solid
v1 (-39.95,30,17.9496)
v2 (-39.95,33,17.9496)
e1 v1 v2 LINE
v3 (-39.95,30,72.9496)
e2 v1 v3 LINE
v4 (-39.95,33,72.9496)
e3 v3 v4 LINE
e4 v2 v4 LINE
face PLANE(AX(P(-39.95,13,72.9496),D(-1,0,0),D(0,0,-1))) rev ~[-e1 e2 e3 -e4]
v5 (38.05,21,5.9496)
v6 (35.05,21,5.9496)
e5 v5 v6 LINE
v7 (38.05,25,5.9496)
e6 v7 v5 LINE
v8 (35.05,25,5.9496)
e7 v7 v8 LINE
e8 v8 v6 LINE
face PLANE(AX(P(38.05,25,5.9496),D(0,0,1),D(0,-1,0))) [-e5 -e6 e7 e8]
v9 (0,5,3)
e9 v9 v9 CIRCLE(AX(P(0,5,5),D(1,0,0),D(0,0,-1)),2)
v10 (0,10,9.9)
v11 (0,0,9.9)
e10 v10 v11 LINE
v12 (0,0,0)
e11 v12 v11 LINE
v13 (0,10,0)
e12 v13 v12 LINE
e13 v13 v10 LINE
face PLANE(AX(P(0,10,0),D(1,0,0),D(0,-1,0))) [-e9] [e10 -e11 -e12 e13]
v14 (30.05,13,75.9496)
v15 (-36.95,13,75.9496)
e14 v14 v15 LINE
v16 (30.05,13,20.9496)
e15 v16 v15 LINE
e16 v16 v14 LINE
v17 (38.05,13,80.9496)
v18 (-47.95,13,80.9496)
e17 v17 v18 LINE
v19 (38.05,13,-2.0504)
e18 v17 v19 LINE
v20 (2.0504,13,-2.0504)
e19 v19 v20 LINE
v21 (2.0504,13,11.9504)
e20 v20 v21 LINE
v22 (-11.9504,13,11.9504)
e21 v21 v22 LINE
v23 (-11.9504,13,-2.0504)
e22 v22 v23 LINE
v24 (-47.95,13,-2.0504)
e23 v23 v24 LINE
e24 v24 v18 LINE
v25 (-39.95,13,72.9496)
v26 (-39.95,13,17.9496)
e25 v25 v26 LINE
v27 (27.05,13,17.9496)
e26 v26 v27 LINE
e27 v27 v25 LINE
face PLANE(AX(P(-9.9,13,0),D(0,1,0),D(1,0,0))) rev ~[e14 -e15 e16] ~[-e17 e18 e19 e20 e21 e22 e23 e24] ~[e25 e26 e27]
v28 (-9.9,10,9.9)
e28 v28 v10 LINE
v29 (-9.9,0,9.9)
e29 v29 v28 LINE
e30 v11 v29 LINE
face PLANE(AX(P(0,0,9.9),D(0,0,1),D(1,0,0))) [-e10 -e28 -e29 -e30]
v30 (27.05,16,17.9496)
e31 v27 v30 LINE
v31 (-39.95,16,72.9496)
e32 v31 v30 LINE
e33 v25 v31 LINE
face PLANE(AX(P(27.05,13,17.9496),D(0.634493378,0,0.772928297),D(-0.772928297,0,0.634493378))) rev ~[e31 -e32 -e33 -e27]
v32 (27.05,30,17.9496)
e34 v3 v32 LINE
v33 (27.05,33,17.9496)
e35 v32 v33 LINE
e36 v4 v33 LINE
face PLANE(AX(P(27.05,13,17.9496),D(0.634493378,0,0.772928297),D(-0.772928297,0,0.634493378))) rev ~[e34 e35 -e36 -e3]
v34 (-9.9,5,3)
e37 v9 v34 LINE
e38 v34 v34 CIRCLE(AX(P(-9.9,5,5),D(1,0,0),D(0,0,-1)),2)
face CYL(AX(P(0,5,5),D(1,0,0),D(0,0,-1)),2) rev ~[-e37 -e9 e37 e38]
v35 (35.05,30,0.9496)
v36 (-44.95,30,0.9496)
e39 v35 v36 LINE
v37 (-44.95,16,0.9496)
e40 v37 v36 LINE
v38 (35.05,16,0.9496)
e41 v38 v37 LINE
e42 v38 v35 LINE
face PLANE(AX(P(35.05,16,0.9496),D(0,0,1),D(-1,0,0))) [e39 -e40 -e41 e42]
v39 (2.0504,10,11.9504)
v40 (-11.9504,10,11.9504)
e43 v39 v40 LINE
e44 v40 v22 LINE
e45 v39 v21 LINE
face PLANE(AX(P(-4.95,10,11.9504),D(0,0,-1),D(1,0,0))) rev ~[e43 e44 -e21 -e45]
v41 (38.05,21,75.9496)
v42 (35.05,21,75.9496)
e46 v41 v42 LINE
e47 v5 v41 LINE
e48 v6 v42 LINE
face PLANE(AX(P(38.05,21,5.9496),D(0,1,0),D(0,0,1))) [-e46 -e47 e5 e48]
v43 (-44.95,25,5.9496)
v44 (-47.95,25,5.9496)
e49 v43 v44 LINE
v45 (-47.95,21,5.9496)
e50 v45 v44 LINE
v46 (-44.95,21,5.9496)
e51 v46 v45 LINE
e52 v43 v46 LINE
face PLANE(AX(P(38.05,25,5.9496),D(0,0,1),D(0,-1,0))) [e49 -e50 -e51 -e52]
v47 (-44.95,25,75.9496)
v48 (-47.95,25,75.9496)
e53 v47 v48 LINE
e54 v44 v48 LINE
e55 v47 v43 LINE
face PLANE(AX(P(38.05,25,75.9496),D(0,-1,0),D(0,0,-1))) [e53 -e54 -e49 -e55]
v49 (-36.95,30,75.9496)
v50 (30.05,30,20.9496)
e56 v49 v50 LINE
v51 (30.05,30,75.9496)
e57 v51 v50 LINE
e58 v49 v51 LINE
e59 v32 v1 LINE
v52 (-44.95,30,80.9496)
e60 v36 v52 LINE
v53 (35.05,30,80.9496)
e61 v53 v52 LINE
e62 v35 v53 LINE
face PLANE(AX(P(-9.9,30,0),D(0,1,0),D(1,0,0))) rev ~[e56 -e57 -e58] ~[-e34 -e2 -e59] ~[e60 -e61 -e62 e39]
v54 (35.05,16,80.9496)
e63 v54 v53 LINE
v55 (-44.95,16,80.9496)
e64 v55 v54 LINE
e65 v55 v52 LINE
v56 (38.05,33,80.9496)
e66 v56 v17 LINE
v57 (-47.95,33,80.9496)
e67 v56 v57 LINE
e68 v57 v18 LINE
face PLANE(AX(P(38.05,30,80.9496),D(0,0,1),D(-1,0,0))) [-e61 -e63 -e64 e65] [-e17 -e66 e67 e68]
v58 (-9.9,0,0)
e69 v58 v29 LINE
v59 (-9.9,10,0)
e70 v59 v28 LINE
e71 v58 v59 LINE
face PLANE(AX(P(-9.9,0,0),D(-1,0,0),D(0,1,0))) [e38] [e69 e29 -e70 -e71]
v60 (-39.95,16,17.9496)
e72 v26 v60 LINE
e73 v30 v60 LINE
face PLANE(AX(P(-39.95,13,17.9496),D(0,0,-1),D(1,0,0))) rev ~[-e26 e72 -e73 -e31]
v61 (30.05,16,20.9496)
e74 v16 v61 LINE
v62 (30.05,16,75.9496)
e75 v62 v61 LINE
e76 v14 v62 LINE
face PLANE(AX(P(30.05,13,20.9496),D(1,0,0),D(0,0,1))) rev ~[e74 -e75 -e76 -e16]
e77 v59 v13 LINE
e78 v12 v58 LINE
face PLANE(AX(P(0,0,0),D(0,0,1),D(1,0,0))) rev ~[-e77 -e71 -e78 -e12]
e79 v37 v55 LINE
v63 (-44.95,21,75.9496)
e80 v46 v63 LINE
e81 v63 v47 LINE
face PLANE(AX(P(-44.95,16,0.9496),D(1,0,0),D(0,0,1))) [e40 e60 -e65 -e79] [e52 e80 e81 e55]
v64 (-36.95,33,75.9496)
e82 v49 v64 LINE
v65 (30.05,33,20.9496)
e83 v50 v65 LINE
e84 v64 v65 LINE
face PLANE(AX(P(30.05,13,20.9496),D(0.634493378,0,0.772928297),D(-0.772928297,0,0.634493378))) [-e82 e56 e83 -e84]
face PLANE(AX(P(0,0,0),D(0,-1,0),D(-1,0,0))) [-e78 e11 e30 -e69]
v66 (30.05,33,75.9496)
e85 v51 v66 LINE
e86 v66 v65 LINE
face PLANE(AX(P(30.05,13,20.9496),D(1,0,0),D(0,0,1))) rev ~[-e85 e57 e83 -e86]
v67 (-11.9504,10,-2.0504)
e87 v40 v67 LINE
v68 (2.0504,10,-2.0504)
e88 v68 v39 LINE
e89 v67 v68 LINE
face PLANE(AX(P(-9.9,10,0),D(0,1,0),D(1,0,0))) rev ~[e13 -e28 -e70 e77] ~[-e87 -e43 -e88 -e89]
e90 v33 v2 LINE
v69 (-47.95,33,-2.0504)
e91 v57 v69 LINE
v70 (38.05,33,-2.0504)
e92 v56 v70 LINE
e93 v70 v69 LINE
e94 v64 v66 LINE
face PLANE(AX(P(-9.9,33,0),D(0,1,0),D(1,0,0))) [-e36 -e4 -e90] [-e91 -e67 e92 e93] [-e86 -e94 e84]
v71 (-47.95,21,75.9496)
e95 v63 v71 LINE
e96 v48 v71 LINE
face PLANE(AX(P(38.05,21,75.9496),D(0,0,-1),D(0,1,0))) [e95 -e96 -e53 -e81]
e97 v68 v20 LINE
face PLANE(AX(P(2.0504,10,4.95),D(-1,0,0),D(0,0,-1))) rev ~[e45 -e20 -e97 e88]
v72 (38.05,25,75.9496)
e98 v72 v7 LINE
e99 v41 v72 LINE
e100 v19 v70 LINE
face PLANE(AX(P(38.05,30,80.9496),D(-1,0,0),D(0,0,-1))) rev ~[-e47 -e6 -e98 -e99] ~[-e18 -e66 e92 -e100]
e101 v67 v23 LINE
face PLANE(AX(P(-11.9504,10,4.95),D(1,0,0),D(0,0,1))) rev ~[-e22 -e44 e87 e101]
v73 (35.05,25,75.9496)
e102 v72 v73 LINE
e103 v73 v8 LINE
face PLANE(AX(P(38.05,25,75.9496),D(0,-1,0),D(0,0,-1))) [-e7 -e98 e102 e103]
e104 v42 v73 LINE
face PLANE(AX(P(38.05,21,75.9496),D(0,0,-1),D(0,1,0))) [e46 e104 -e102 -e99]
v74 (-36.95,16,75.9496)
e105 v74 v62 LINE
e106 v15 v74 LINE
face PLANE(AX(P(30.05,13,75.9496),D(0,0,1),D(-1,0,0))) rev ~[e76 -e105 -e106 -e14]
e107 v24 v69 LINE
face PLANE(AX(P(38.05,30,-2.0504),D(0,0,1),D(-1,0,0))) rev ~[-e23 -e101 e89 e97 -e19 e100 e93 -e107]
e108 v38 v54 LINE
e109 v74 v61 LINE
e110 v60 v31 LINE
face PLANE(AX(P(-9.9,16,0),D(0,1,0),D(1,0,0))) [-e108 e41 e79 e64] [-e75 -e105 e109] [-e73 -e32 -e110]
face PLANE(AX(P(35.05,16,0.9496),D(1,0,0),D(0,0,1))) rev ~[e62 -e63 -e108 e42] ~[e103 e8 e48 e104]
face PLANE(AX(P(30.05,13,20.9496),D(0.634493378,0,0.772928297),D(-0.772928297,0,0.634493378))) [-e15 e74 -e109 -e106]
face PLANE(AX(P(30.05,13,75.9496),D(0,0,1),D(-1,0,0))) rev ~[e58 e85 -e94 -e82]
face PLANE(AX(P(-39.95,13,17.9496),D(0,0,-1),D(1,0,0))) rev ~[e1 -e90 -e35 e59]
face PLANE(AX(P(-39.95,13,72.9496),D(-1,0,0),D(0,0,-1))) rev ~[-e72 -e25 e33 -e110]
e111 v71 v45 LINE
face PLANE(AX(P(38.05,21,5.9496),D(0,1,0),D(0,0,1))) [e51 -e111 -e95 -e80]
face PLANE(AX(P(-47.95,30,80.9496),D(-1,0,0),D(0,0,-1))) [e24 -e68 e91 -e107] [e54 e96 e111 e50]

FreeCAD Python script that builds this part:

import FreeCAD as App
import Part
import Sketcher


def add_polygon(sketch, points):
    """Adds a closed chain of lines whose ends are joined by coincident constraints."""
    first, n = sketch.GeometryCount, len(points)
    for a, b in zip(points, points[1:] + points[:1]):
        sketch.addGeometry(Part.LineSegment(App.Vector(*a, 0), App.Vector(*b, 0)), False)
    for i in range(n):
        sketch.addConstraint(Sketcher.Constraint("Coincident", first + i, 2, first + (i + 1) % n, 1))

doc = App.newDocument("Part")
body = doc.addObject("PartDesign::Body", "Body")

sketch1 = body.newObject("Sketcher::SketchObject", "Sketch")
sketch1.AttachmentSupport = (doc.getObject("XY_Plane"), [""])
sketch1.MapMode = "FlatFace"
add_polygon(sketch1, [(-10, 0), (0, 0), (0, 10), (-10, 10)])
sketch1.addConstraint([
    Sketcher.Constraint("Horizontal", 0),
    Sketcher.Constraint("Vertical", 1),
    Sketcher.Constraint("Horizontal", 2),
    Sketcher.Constraint("Vertical", 3),
    Sketcher.Constraint("Coincident", 0, 2, -1, 1),
    Sketcher.Constraint("DistanceY", 1, 1, 1, 2, 10.0),
    Sketcher.Constraint("DistanceX", 0, 1, 0, 2, 9.9),
])
pad1 = body.newObject("PartDesign::Pad", "Pad")
pad1.Profile = sketch1
pad1.Length = 9.9

sketch2 = body.newObject("Sketcher::SketchObject", "Sketch001")
sketch2.AttachmentSupport = (doc.getObject("YZ_Plane"), [""])
sketch2.MapMode = "FlatFace"
sketch2.addGeometry(Part.Circle(App.Vector(5, 5, 0), App.Vector(0, 0, 1), 2), False)
sketch2.addConstraint([
    Sketcher.Constraint("Diameter", 0, 4.0),
    Sketcher.Constraint("DistanceX", -1, 1, 0, 3, 5.0),
    Sketcher.Constraint("DistanceY", -1, 1, 0, 3, 5.0),
])
pocket1 = body.newObject("PartDesign::Pocket", "Pocket")
pocket1.Profile = sketch2
pocket1.Length = 10

sketch3 = body.newObject("Sketcher::SketchObject", "Sketch002")
sketch3.AttachmentSupport = (doc.getObject("XZ_Plane"), [""])
sketch3.MapMode = "FlatFace"
sketch3.AttachmentOffset = App.Placement(App.Vector(0, 0, -10), App.Rotation())
add_polygon(sketch3, [(2, -2), (-12, -2), (-12, 12), (2, 12)])
sketch3.addConstraint([
    Sketcher.Constraint("Horizontal", 0),
    Sketcher.Constraint("Vertical", 1),
    Sketcher.Constraint("Horizontal", 2),
    Sketcher.Constraint("Vertical", 3),
    Sketcher.Constraint("Equal", 2, 1),
    Sketcher.Constraint("DistanceX", 0, 2, 0, 1, 14.0008),
    Sketcher.Constraint("DistanceX", 0, 2, -1, 1, 11.9504),
    Sketcher.Constraint("DistanceY", 0, 2, -1, 1, 2.0504),
])
pad2 = body.newObject("PartDesign::Pad", "Pad001")
pad2.Profile = sketch3
pad2.Length = 3
pad2.Reversed = True

sketch4 = body.newObject("Sketcher::SketchObject", "Sketch003")
sketch4.AttachmentSupport = (doc.getObject("XZ_Plane"), [""])
sketch4.MapMode = "FlatFace"
sketch4.AttachmentOffset = App.Placement(App.Vector(0, 0, -13), App.Rotation())
add_polygon(sketch4, [(-48, -2), (-48, 81), (38, 81), (38, -2)])
sketch4.addConstraint([
    Sketcher.Constraint("Vertical", 0),
    Sketcher.Constraint("Horizontal", 1),
    Sketcher.Constraint("Vertical", 2),
    Sketcher.Constraint("Horizontal", 3),
    Sketcher.Constraint("DistanceY", 0, 1, 0, 2, 83.0),
    Sketcher.Constraint("DistanceX", 1, 1, 1, 2, 86.0),
    Sketcher.Constraint("DistanceX", 0, 2, -1, 1, 47.95),
    Sketcher.Constraint("DistanceY", -1, 1, 0, 2, 80.9496),
])
pad3 = body.newObject("PartDesign::Pad", "Pad002")
pad3.Profile = sketch4
pad3.Length = 3
pad3.Reversed = True

sketch5 = body.newObject("Sketcher::SketchObject", "Sketch004")
sketch5.AttachmentSupport = (doc.getObject("XZ_Plane"), [""])
sketch5.MapMode = "FlatFace"
sketch5.AttachmentOffset = App.Placement(App.Vector(0, 0, -16), App.Rotation())
add_polygon(sketch5, [(-48, -2.1), (-48, 80.9), (-45, 80.9), (-45, 0.9), (35, 0.9), (35, 80.9), (38, 80.9), (38, -2.1)])
sketch5.addConstraint([
    Sketcher.Constraint("Vertical", 0),
    Sketcher.Constraint("Horizontal", 1),
    Sketcher.Constraint("Vertical", 2),
    Sketcher.Constraint("Horizontal", 3),
    Sketcher.Constraint("Vertical", 4),
    Sketcher.Constraint("Horizontal", 5),
    Sketcher.Constraint("Vertical", 6),
    Sketcher.Constraint("Horizontal", 7),
    Sketcher.Constraint("Horizontal", 1, 2, 4, 2),
    Sketcher.Constraint("Equal", 1, 5),
    Sketcher.Constraint("Equal", 3, 2),
    Sketcher.Constraint("DistanceX", 1, 1, 1, 2, 3.0),
    Sketcher.Constraint("DistanceY", 6, 2, 3, 2, 3.0),
    Sketcher.Constraint("DistanceX", 3, 1, 3, 2, 80.0),
    Sketcher.Constraint("DistanceX", 0, 2, -1, 1, 47.95),
    Sketcher.Constraint("DistanceY", -1, 1, 0, 2, 80.9496),
])
pad4 = body.newObject("PartDesign::Pad", "Pad003")
pad4.Profile = sketch5
pad4.Length = 14
pad4.Reversed = True

sketch6 = body.newObject("Sketcher::SketchObject", "Sketch005")
sketch6.AttachmentSupport = (doc.getObject("XZ_Plane"), [""])
sketch6.MapMode = "FlatFace"
sketch6.AttachmentOffset = App.Placement(App.Vector(0, 0, -30), App.Rotation())
add_polygon(sketch6, [(38, 81), (38, -2), (-48, -2), (-48, 81)])
sketch6.addConstraint([
    Sketcher.Constraint("Vertical", 0),
    Sketcher.Constraint("Horizontal", 1),
    Sketcher.Constraint("Vertical", 2),
    Sketcher.Constraint("Horizontal", 3),
    Sketcher.Constraint("DistanceX", 1, 2, 1, 1, 86.0),
    Sketcher.Constraint("DistanceY", 0, 2, 0, 1, 83.0),
    Sketcher.Constraint("DistanceX", -1, 1, 0, 2, 38.05),
    Sketcher.Constraint("DistanceY", 0, 2, -1, 1, 2.0504),
])
pad5 = body.newObject("PartDesign::Pad", "Pad004")
pad5.Profile = sketch6
pad5.Length = 3
pad5.Reversed = True

sketch7 = body.newObject("Sketcher::SketchObject", "Sketch006")
sketch7.AttachmentSupport = (doc.getObject("XZ_Plane"), [""])
sketch7.MapMode = "FlatFace"
sketch7.AttachmentOffset = App.Placement(App.Vector(0, 0, -13), App.Rotation())
add_polygon(sketch7, [(30, 21), (30, 76), (-37, 76)])
add_polygon(sketch7, [(27, 18), (-40, 73), (-40, 18)])
sketch7.addConstraint([
    Sketcher.Constraint("Vertical", 0),
    Sketcher.Constraint("Horizontal", 1),
    Sketcher.Constraint("Vertical", 4),
    Sketcher.Constraint("Horizontal", 5),
    Sketcher.Constraint("Parallel", 2, 3),
    Sketcher.Constraint("Equal", 1, 5),
    Sketcher.Constraint("DistanceX", 3, 2, 1, 2, 3.0),
    Sketcher.Constraint("DistanceY", 3, 2, 1, 2, 3.0),
    Sketcher.Constraint("DistanceX", 1, 2, 1, 1, 67.0),
    Sketcher.Constraint("DistanceY", 0, 1, 0, 2, 55.0),
    Sketcher.Constraint("DistanceX", -1, 1, 0, 2, 30.05),
    Sketcher.Constraint("DistanceY", -1, 1, 0, 2, 75.9496),
])
pocket2 = body.newObject("PartDesign::Pocket", "Pocket001")
pocket2.Profile = sketch7
pocket2.Length = 33

sketch8 = body.newObject("Sketcher::SketchObject", "Sketch007")
sketch8.AttachmentSupport = (doc.getObject("YZ_Plane"), [""])
sketch8.MapMode = "FlatFace"
sketch8.AttachmentOffset = App.Placement(App.Vector(0, 0, 38.05), App.Rotation())
add_polygon(sketch8, [(25, 5.9), (25, 75.9), (21, 75.9), (21, 5.9)])
sketch8.addConstraint([
    Sketcher.Constraint("Vertical", 0),
    Sketcher.Constraint("Horizontal", 1),
    Sketcher.Constraint("Vertical", 2),
    Sketcher.Constraint("Horizontal", 3),
    Sketcher.Constraint("DistanceX", 1, 2, 1, 1, 4.0),
    Sketcher.Constraint("DistanceY", 0, 1, 0, 2, 70.0),
    Sketcher.Constraint("DistanceX", -1, 1, 0, 2, 25.0),
    Sketcher.Constraint("DistanceY", -1, 1, 0, 2, 75.9496),
])
pocket3 = body.newObject("PartDesign::Pocket", "Pocket002")
pocket3.Profile = sketch8
pocket3.Length = 333

doc.recompute()
